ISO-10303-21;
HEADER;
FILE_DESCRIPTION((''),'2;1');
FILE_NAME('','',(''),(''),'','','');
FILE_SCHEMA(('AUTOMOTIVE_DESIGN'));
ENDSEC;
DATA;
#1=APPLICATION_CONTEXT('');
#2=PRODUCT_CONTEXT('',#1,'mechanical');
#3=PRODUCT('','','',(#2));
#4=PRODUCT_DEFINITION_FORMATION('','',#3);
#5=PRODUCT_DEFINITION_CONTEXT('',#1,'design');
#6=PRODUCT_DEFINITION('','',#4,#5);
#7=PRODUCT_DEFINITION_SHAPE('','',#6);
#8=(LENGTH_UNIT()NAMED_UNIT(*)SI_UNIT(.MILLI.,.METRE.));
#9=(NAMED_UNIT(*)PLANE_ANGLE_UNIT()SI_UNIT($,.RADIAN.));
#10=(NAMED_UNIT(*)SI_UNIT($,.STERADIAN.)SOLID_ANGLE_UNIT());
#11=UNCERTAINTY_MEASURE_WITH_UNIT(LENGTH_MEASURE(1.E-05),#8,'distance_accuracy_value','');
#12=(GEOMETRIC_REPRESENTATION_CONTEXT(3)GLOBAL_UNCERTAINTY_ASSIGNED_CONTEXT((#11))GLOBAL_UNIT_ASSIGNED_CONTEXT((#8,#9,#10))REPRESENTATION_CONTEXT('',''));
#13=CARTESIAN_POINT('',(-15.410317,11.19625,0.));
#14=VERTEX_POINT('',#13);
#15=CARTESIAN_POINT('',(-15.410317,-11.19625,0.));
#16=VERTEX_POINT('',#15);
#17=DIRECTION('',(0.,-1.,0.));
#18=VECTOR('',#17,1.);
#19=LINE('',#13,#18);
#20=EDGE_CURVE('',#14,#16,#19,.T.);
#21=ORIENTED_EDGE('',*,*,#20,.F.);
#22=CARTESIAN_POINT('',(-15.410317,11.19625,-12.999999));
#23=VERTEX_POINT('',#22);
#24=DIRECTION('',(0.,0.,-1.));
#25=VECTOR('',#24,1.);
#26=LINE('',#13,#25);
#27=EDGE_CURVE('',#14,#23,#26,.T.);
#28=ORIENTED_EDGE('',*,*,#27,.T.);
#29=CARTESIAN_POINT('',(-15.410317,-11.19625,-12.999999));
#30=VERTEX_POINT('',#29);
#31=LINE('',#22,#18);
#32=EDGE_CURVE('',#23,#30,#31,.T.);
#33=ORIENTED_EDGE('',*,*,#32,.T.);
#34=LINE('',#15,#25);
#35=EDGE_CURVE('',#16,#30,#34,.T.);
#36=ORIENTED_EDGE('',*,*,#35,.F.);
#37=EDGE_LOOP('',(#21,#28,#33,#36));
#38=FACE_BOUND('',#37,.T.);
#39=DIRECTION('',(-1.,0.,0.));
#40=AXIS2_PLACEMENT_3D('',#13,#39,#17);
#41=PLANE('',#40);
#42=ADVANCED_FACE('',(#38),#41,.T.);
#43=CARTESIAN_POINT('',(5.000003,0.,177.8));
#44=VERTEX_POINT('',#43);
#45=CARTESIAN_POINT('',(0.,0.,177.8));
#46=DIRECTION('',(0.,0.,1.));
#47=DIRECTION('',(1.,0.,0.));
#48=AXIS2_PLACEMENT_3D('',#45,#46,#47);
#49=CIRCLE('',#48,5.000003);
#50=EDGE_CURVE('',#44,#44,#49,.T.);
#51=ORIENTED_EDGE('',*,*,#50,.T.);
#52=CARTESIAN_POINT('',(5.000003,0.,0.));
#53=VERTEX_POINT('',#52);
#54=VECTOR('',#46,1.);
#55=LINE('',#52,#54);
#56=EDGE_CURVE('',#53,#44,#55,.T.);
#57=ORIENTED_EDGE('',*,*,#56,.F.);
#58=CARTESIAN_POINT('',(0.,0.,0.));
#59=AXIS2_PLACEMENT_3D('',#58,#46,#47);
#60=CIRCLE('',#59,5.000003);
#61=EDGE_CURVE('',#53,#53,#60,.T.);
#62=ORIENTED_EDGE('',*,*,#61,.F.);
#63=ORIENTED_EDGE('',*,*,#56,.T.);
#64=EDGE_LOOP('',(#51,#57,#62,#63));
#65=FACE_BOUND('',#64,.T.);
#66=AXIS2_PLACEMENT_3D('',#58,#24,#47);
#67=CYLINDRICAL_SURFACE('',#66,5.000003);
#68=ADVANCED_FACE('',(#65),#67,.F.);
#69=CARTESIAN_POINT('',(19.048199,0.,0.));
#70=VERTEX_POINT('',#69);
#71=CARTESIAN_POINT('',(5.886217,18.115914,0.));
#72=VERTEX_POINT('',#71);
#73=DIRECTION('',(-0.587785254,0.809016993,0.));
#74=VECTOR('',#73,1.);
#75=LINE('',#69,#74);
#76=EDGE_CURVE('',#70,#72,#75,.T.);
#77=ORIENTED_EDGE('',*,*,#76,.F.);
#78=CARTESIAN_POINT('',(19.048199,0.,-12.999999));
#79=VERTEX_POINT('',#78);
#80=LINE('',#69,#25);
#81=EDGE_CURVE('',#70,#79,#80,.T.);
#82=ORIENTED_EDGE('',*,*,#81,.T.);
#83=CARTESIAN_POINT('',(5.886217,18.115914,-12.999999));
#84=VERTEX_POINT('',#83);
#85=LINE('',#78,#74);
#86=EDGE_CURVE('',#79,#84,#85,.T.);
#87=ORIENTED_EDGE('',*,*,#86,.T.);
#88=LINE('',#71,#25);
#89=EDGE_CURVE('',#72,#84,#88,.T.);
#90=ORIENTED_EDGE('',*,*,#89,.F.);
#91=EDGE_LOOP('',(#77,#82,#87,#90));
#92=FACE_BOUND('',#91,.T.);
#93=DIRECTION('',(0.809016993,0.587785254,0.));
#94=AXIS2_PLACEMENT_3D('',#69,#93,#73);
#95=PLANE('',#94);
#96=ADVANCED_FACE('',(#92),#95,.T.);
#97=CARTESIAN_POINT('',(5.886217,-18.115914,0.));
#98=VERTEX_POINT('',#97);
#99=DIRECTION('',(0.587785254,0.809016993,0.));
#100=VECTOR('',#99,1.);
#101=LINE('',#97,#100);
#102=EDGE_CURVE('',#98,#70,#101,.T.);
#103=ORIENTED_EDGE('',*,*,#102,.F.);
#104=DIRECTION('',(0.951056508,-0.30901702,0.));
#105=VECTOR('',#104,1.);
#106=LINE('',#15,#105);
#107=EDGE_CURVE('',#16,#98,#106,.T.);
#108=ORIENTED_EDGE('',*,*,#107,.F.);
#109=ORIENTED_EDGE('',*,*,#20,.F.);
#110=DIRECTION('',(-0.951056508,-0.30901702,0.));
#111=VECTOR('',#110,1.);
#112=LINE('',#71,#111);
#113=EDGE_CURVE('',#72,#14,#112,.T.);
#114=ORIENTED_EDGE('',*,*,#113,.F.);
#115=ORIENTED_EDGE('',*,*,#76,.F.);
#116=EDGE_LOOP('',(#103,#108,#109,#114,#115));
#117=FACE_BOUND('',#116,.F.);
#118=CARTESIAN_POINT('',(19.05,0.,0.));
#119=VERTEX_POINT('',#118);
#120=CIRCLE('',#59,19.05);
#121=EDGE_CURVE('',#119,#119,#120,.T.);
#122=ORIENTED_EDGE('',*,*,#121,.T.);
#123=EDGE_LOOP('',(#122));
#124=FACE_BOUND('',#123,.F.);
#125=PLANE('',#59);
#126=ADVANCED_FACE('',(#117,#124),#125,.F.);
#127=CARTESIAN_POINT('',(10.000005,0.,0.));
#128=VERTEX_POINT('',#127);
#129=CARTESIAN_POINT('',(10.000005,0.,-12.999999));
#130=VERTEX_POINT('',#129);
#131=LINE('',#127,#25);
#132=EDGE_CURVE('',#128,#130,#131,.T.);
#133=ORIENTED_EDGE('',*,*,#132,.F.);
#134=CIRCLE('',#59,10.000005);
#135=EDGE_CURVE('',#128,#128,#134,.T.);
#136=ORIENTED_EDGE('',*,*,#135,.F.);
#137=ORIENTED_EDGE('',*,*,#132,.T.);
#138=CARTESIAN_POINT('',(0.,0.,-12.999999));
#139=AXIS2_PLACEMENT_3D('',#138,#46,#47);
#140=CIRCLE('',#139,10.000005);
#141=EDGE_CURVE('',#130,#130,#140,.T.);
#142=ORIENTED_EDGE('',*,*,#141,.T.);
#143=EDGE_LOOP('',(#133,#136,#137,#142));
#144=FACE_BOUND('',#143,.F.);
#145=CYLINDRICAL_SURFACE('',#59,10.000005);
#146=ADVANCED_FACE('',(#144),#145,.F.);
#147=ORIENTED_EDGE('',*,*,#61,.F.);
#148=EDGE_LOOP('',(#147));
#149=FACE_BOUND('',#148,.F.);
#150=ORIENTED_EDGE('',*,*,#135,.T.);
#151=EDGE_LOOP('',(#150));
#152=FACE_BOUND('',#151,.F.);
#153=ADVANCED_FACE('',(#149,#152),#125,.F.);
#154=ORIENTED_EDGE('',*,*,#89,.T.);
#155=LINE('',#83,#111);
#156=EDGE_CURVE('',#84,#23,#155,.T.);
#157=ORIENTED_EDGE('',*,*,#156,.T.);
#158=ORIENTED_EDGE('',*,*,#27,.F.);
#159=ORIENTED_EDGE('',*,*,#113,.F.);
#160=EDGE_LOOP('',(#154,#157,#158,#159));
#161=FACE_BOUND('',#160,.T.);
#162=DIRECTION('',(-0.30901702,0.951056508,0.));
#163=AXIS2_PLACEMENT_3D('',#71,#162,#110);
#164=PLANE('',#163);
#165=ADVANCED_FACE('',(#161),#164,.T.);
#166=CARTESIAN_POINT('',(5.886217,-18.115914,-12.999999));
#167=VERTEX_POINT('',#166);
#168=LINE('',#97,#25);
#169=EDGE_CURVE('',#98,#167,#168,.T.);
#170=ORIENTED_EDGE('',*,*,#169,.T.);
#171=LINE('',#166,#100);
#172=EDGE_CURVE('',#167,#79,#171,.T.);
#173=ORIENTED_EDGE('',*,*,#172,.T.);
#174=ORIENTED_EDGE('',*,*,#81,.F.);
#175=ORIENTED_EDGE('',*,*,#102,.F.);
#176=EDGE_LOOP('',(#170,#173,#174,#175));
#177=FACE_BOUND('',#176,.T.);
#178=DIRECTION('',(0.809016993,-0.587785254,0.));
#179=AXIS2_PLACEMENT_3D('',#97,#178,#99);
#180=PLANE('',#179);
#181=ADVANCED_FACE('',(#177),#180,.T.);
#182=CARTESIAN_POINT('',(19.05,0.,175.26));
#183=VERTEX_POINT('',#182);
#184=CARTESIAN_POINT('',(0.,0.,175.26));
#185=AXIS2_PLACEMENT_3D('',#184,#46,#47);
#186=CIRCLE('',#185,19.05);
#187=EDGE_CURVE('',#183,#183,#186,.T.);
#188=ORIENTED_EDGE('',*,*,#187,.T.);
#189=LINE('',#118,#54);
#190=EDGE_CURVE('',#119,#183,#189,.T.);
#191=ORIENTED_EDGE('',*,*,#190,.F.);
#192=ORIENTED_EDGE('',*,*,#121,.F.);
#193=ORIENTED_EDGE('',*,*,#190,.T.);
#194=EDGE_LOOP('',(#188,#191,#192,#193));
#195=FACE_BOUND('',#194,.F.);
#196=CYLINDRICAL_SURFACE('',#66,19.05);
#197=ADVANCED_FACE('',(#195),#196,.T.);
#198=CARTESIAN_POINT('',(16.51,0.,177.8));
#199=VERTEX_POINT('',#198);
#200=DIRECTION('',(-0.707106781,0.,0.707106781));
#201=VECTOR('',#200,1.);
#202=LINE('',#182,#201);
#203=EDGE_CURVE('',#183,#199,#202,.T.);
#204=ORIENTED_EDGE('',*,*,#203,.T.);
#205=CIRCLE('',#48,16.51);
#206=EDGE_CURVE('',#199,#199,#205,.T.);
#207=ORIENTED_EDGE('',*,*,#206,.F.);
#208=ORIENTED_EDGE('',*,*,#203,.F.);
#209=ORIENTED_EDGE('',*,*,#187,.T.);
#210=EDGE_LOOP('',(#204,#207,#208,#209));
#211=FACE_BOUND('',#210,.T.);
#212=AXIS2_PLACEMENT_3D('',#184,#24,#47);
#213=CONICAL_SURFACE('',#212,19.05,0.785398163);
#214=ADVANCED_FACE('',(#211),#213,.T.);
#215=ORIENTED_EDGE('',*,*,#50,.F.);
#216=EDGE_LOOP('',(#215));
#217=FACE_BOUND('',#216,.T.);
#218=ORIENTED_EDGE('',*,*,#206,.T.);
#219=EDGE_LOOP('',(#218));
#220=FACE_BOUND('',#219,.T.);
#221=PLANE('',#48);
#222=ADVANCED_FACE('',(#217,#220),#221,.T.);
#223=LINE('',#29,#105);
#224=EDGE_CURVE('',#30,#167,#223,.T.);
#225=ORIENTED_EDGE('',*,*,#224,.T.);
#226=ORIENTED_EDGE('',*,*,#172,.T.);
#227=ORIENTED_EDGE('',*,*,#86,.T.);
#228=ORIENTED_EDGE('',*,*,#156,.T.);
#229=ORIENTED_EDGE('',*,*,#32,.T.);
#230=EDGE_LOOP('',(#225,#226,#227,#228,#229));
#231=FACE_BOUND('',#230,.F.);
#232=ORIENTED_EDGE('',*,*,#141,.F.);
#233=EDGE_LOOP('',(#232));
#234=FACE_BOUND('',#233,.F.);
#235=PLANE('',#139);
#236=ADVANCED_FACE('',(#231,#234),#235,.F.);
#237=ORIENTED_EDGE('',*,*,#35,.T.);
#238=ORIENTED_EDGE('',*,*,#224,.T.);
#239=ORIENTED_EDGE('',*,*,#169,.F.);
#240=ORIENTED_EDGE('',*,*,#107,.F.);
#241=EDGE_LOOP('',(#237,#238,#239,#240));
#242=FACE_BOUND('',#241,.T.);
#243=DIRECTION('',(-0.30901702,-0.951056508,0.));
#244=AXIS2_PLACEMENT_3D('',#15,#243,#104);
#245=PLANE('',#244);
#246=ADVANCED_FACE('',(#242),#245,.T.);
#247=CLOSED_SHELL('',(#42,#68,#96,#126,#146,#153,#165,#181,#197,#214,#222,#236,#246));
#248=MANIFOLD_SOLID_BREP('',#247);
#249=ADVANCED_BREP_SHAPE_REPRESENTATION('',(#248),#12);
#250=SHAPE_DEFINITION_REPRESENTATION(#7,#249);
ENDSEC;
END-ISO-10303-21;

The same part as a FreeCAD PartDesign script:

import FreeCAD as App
import Part
import Sketcher
Q = App.Units.Quantity


def edges_at(feature, points):
    """Names of the edges that pass closest to the given points."""
    edges = feature.Shape.Edges
    near = lambda p: min(range(len(edges)), key=lambda i: edges[i].distToShape(Part.Vertex(*p))[0])
    return sorted({f"Edge{near(p) + 1}" for p in points})

doc = App.newDocument("Part")
body = doc.addObject("PartDesign::Body", "Body")

# Sketch on XY plane
sketch1 = body.newObject("Sketcher::SketchObject", "Sketch")
sketch1.AttachmentSupport = (doc.getObject("XY_Plane"), [""])
sketch1.MapMode = "FlatFace"
sketch1.addGeometry(Part.Circle(App.Vector(0, 0, 0), App.Vector(0, 0, 1), 19), False)
sketch1.addGeometry(Part.Circle(App.Vector(0, 0, 0), App.Vector(0, 0, 1), 5), False)
sketch1.addConstraint(Sketcher.Constraint("Coincident", 0, 3, -1, 1))
sketch1.addConstraint(Sketcher.Constraint("Coincident", 1, 3, -1, 1))
sketch1.addConstraint(Sketcher.Constraint("Diameter", 0, Q("1.5 in")))
sketch1.addConstraint(Sketcher.Constraint("Diameter", 1, 10.000006))
pad1 = body.newObject("PartDesign::Pad", "Pad")
pad1.Profile = sketch1
pad1.Length = Q("7 in")

# Sketch on XY plane
sketch2 = body.newObject("Sketcher::SketchObject", "Sketch001")
sketch2.AttachmentSupport = (doc.getObject("XY_Plane"), [""])
sketch2.MapMode = "FlatFace"
sketch2.addGeometry(Part.LineSegment(App.Vector(6, -18, 0), App.Vector(19, 0, 0)), False)
sketch2.addGeometry(Part.LineSegment(App.Vector(19, 0, 0), App.Vector(6, 18, 0)), False)
sketch2.addGeometry(Part.LineSegment(App.Vector(6, 18, 0), App.Vector(-15, 11, 0)), False)
sketch2.addGeometry(Part.LineSegment(App.Vector(-15, 11, 0), App.Vector(-15, -11, 0)), False)
sketch2.addGeometry(Part.LineSegment(App.Vector(-15, -11, 0), App.Vector(6, -18, 0)), False)
sketch2.addGeometry(Part.Circle(App.Vector(0, 0, 0), App.Vector(0, 0, 1), 10), False)
sketch2.addConstraint(Sketcher.Constraint("Coincident", 0, 2, 1, 1))
sketch2.addConstraint(Sketcher.Constraint("Coincident", 1, 2, 2, 1))
sketch2.addConstraint(Sketcher.Constraint("Coincident", 2, 2, 3, 1))
sketch2.addConstraint(Sketcher.Constraint("Coincident", 3, 2, 4, 1))
sketch2.addConstraint(Sketcher.Constraint("Coincident", 4, 2, 0, 1))
sketch2.addConstraint(Sketcher.Constraint("Vertical", 3))
sketch2.addConstraint(Sketcher.Constraint("Coincident", 5, 3, -1, 1))
sketch2.addConstraint(Sketcher.Constraint("Symmetric", 1, 2, 4, 2, -1))
sketch2.addConstraint(Sketcher.Constraint("PointOnObject", 0, 2, -1))
sketch2.addConstraint(Sketcher.Constraint("Equal", 1, 2))
sketch2.addConstraint(Sketcher.Constraint("Equal", 2, 4))
sketch2.addConstraint(Sketcher.Constraint("Angle", 0, Q("54 deg")))
sketch2.addConstraint(Sketcher.Constraint("Angle", 2, Q("-161.999998 deg")))
sketch2.addConstraint(Sketcher.Constraint("Diameter", 5, 20.00001))
sketch2.addConstraint(Sketcher.Constraint("DistanceY", 3, 2, 3, 1, 22.3925))
sketch2.addConstraint(Sketcher.Constraint("DistanceX", -1, 1, 0, 2, 19.048199))
pad2 = body.newObject("PartDesign::Pad", "Pad001")
pad2.Profile = sketch2
pad2.Length = 12.999999
pad2.Reversed = True
doc.recompute()

chamfer = body.newObject("PartDesign::Chamfer", "Chamfer")
chamfer.Base = (pad2, edges_at(pad2, [(-19.05, 0, 177.8)]))
chamfer.Size = Q("0.1 in")

doc.recompute()
